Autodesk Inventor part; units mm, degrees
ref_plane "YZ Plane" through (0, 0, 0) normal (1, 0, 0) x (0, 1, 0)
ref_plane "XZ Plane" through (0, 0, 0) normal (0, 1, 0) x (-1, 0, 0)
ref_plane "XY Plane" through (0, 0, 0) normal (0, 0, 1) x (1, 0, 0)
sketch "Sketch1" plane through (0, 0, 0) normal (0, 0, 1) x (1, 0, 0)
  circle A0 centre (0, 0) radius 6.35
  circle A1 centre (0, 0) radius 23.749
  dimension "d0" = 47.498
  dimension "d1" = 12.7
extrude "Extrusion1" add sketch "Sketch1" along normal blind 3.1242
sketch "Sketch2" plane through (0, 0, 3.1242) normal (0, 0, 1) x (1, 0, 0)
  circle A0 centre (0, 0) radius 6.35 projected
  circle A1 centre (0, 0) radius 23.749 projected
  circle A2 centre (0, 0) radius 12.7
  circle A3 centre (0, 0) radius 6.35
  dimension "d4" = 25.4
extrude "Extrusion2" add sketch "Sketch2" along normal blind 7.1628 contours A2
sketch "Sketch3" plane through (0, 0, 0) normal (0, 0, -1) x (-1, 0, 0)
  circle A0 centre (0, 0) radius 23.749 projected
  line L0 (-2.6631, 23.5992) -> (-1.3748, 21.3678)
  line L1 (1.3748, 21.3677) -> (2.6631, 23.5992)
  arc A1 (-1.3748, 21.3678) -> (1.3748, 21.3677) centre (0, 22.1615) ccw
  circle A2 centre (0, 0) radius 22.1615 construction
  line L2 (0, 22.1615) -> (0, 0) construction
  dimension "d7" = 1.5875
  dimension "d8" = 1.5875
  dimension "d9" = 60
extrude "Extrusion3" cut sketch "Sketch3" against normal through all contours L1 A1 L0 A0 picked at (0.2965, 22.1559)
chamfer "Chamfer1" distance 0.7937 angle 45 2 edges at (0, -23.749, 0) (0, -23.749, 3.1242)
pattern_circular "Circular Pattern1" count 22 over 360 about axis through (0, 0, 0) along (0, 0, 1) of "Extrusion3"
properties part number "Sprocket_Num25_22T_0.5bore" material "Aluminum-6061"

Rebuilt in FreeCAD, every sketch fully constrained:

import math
import FreeCAD as App
import Part
import Sketcher
Q = App.Units.Quantity


def edges_at(feature, points):
    """Names of the edges that pass closest to the given points."""
    edges = feature.Shape.Edges
    near = lambda p: min(range(len(edges)), key=lambda i: edges[i].distToShape(Part.Vertex(*p))[0])
    return sorted({f"Edge{near(p) + 1}" for p in points})

doc = App.newDocument("Part")
body = doc.addObject("PartDesign::Body", "Body")

# Sketch on XY plane
sketch1 = doc.addObject("Sketcher::SketchObject", "Sketch")
body.addObject(sketch1)
sketch1.AttachmentSupport = (doc.XY_Plane, [""])
sketch1.MapMode = "FlatFace"
sketch1.addGeometry([
    Part.Circle(App.Vector(0, 0, 0), App.Vector(0, 0, 1), 24),
    Part.Circle(App.Vector(0, 0, 0), App.Vector(0, 0, 1), 6),
], False)
sketch1.addConstraint([
    Sketcher.Constraint("Coincident", 0, 3, -1, 1),
    Sketcher.Constraint("Coincident", 1, 3, -1, 1),
    Sketcher.Constraint("Diameter", 1, Q("0.5 in")),
    Sketcher.Constraint("Diameter", 0, Q("1.87 in")),
])
pad1 = doc.addObject("PartDesign::Pad", "Pad")
body.addObject(pad1)
pad1.Profile = sketch1
pad1.Length = Q("0.123 in")

# Sketch on XY plane
sketch2 = doc.addObject("Sketcher::SketchObject", "Sketch001")
body.addObject(sketch2)
sketch2.AttachmentSupport = (doc.XY_Plane, [""])
sketch2.MapMode = "FlatFace"
sketch2.AttachmentOffset = App.Placement(App.Vector(0, 0, 0.123 * 25.4), App.Rotation())
sketch2.addGeometry([
    Part.Circle(App.Vector(0, 0, 0), App.Vector(0, 0, 1), 13),
    Part.Circle(App.Vector(0, 0, 0), App.Vector(0, 0, 1), 6),
], False)
sketch2.addConstraint([
    Sketcher.Constraint("Coincident", 0, 3, -1, 1),
    Sketcher.Constraint("Coincident", 1, 3, -1, 1),
    Sketcher.Constraint("Diameter", 0, Q("1 in")),
    Sketcher.Constraint("Diameter", 1, Q("0.5 in")),
])
pad2 = doc.addObject("PartDesign::Pad", "Pad001")
body.addObject(pad2)
pad2.Profile = sketch2
pad2.Length = Q("0.282 in")

# Sketch on XY plane
sketch3 = doc.addObject("Sketcher::SketchObject", "Sketch002")
body.addObject(sketch3)
sketch3.AttachmentSupport = (doc.XY_Plane, [""])
sketch3.MapMode = "FlatFace"
sketch3.addGeometry([
    Part.LineSegment(App.Vector(-1.4, 21.4, 0), App.Vector(-2.7, 23.6, 0)),
    Part.ArcOfCircle(Part.Circle(App.Vector(0, 0, 0), App.Vector(0, 0, 1), 23.7), math.radians(83.56), math.radians(96.44)),
    Part.LineSegment(App.Vector(2.7, 23.6, 0), App.Vector(1.4, 21.4, 0)),
    Part.ArcOfCircle(Part.Circle(App.Vector(0, 22.2, 0), App.Vector(0, 0, 1), 1.6), math.radians(-150), math.radians(-30)),
], False)
sketch3.addConstraint([
    Sketcher.Constraint("Coincident", 0, 2, 1, 2),
    Sketcher.Constraint("Coincident", 1, 1, 2, 1),
    Sketcher.Constraint("Tangent", 2, 2, 3, 2),
    Sketcher.Constraint("Tangent", 3, 1, 0, 1),
    Sketcher.Constraint("Coincident", 1, 3, -1, 1),
    Sketcher.Constraint("Symmetric", 2, 2, 3, 1, -2),
    Sketcher.Constraint("Radius", 3, Q("0.0625 in")),
    Sketcher.Constraint("Angle", 0, Q("119.999 deg")),
    Sketcher.Constraint("Radius", 1, Q("0.935 in")),
    Sketcher.Constraint("DistanceY", -1, 1, 3, 3, Q("0.8725 in")),
])
pocket1 = doc.addObject("PartDesign::Pocket", "Pocket")
body.addObject(pocket1)
pocket1.Profile = sketch3
pocket1.Type = "ThroughAll"
pocket1.Reversed = True
doc.recompute()

chamfer = doc.addObject("PartDesign::Chamfer", "Chamfer")
body.addObject(chamfer)
chamfer.Base = (pocket1, edges_at(pocket1, [(0, -23.749, 0), (0, -23.749, 3.124)]))
chamfer.Size = Q("0.031248 in")
doc.recompute()

polarpattern = doc.addObject("PartDesign::PolarPattern", "PolarPattern")
body.addObject(polarpattern)
polarpattern.Originals = [pocket1]
polarpattern.Axis = (doc.Z_Axis, [""])
polarpattern.Angle = 360
polarpattern.Occurrences = 22
body.Tip = polarpattern

doc.recompute()
